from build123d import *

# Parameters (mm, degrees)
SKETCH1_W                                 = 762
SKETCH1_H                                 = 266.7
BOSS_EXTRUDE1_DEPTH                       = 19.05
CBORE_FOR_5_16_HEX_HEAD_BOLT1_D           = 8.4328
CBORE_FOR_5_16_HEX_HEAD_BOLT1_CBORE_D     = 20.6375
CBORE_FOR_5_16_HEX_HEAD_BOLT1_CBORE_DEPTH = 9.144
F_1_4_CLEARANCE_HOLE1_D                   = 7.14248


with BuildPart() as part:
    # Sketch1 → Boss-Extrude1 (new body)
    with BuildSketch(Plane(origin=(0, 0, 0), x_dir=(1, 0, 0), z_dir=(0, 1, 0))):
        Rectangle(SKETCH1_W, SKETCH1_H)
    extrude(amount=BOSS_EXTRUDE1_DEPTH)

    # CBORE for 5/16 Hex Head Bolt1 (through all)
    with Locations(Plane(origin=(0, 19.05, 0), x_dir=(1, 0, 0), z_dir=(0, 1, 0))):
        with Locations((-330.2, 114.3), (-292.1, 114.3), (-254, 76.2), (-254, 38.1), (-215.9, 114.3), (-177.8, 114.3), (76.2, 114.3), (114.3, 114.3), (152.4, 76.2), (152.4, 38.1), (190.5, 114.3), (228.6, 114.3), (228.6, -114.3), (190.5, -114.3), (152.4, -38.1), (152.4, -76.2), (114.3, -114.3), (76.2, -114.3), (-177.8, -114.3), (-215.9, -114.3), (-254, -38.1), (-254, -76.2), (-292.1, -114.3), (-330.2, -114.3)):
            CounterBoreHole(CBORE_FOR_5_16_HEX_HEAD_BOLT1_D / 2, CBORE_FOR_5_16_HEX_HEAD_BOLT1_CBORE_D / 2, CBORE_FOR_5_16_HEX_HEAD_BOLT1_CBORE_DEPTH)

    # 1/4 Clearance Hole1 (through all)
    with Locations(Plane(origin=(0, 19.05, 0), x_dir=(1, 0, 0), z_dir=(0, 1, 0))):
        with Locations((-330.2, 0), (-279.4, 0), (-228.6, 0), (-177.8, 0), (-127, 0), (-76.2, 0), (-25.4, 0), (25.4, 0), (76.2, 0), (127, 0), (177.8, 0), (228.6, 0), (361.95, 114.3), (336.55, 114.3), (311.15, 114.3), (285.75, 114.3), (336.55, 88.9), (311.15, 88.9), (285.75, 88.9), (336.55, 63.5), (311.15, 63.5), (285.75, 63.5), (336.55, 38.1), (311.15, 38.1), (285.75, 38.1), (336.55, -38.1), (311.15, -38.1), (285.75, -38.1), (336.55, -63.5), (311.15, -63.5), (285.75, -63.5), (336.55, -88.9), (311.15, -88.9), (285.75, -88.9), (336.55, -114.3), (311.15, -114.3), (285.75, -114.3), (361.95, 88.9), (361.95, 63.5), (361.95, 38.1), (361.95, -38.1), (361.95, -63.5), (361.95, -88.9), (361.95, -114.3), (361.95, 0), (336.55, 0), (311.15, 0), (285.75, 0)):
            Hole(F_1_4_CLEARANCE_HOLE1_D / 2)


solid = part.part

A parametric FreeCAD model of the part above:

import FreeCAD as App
import Part
import Sketcher
from FreeCAD import Vector
Q = App.Units.Quantity


def add_polygon(sketch, points):
    """Adds a closed chain of lines whose ends are joined by coincident constraints."""
    first, n = sketch.GeometryCount, len(points)
    for a, b in zip(points, points[1:] + points[:1]):
        sketch.addGeometry(Part.LineSegment(App.Vector(*a, 0), App.Vector(*b, 0)), False)
    for i in range(n):
        sketch.addConstraint(Sketcher.Constraint("Coincident", first + i, 2, first + (i + 1) % n, 1))

doc = App.newDocument("Part")
body = doc.addObject("PartDesign::Body", "Body")

sketch1 = body.newObject("Sketcher::SketchObject", "Sketch")
sketch1.AttachmentSupport = (doc.getObject("XZ_Plane"), [""])
sketch1.MapMode = "FlatFace"
add_polygon(sketch1, [(-381, -133), (-381, 133), (381, 133), (381, -133)])
sketch1.addConstraint([
    Sketcher.Constraint("Vertical", 0),
    Sketcher.Constraint("Horizontal", 1),
    Sketcher.Constraint("Vertical", 2),
    Sketcher.Constraint("Horizontal", 3),
    Sketcher.Constraint("Symmetric", 0, 2, 2, 2, -1, 1),
    Sketcher.Constraint("DistanceX", 1, 1, 1, 2, Q("30 in")),
    Sketcher.Constraint("DistanceY", 0, 1, 0, 2, Q("10.5 in")),
])
pad1 = body.newObject("PartDesign::Pad", "Pad")
pad1.Profile = sketch1
pad1.Length = Q("0.75 in")
pad1.Reversed = True

sketch2 = body.newObject("Sketcher::SketchObject", "Sketch001")
sketch2.AttachmentSupport = (doc.getObject("XZ_Plane"), [""])
sketch2.MapMode = "FlatFace"
sketch2.AttachmentOffset = App.Placement(Vector(0, 0, -0.75 * 25.4), App.Rotation())
sketch2.addGeometry([
    Part.Circle(Vector(-330.2, -114.3, 0), Vector(0, 0, 1), 4.2),
    Part.Circle(Vector(-292.1, -114.3, 0), Vector(0, 0, 1), 4.2),
    Part.Circle(Vector(-254, -76.2, 0), Vector(0, 0, 1), 4.2),
    Part.Circle(Vector(-254, -38.1, 0), Vector(0, 0, 1), 4.2),
    Part.Circle(Vector(-215.9, -114.3, 0), Vector(0, 0, 1), 4.2),
    Part.Circle(Vector(-177.8, -114.3, 0), Vector(0, 0, 1), 4.2),
    Part.Circle(Vector(76.2, -114.3, 0), Vector(0, 0, 1), 4.2),
    Part.Circle(Vector(114.3, -114.3, 0), Vector(0, 0, 1), 4.2),
    Part.Circle(Vector(152.4, -76.2, 0), Vector(0, 0, 1), 4.2),
    Part.Circle(Vector(152.4, -38.1, 0), Vector(0, 0, 1), 4.2),
    Part.Circle(Vector(190.5, -114.3, 0), Vector(0, 0, 1), 4.2),
    Part.Circle(Vector(228.6, -114.3, 0), Vector(0, 0, 1), 4.2),
    Part.Circle(Vector(228.6, 114.3, 0), Vector(0, 0, 1), 4.2),
    Part.Circle(Vector(190.5, 114.3, 0), Vector(0, 0, 1), 4.2),
    Part.Circle(Vector(152.4, 38.1, 0), Vector(0, 0, 1), 4.2),
    Part.Circle(Vector(152.4, 76.2, 0), Vector(0, 0, 1), 4.2),
    Part.Circle(Vector(114.3, 114.3, 0), Vector(0, 0, 1), 4.2),
    Part.Circle(Vector(76.2, 114.3, 0), Vector(0, 0, 1), 4.2),
    Part.Circle(Vector(-177.8, 114.3, 0), Vector(0, 0, 1), 4.2),
    Part.Circle(Vector(-215.9, 114.3, 0), Vector(0, 0, 1), 4.2),
    Part.Circle(Vector(-254, 38.1, 0), Vector(0, 0, 1), 4.2),
    Part.Circle(Vector(-254, 76.2, 0), Vector(0, 0, 1), 4.2),
    Part.Circle(Vector(-292.1, 114.3, 0), Vector(0, 0, 1), 4.2),
    Part.Circle(Vector(-330.2, 114.3, 0), Vector(0, 0, 1), 4.2),
], False)
sketch2.addConstraint([
    Sketcher.Constraint("Equal", 0, 1),
    Sketcher.Constraint("Equal", 1, 2),
    Sketcher.Constraint("Equal", 2, 3),
    Sketcher.Constraint("Equal", 3, 4),
    Sketcher.Constraint("Equal", 4, 5),
    Sketcher.Constraint("Equal", 5, 6),
    Sketcher.Constraint("Equal", 6, 7),
    Sketcher.Constraint("Equal", 7, 8),
    Sketcher.Constraint("Equal", 8, 9),
    Sketcher.Constraint("Equal", 9, 10),
    Sketcher.Constraint("Equal", 10, 11),
    Sketcher.Constraint("Equal", 11, 12),
    Sketcher.Constraint("Equal", 12, 13),
    Sketcher.Constraint("Equal", 13, 14),
    Sketcher.Constraint("Equal", 14, 15),
    Sketcher.Constraint("Equal", 15, 16),
    Sketcher.Constraint("Equal", 16, 17),
    Sketcher.Constraint("Equal", 17, 18),
    Sketcher.Constraint("Equal", 18, 19),
    Sketcher.Constraint("Equal", 19, 20),
    Sketcher.Constraint("Equal", 20, 21),
    Sketcher.Constraint("Equal", 21, 22),
    Sketcher.Constraint("Equal", 22, 23),
    Sketcher.Constraint("Symmetric", 11, 3, 12, 3, -1),
    Sketcher.Constraint("Symmetric", 10, 3, 13, 3, -1),
    Sketcher.Constraint("Symmetric", 9, 3, 14, 3, -1),
    Sketcher.Constraint("Symmetric", 8, 3, 15, 3, -1),
    Sketcher.Constraint("Symmetric", 7, 3, 16, 3, -1),
    Sketcher.Constraint("Symmetric", 6, 3, 17, 3, -1),
    Sketcher.Constraint("Symmetric", 5, 3, 18, 3, -1),
    Sketcher.Constraint("Symmetric", 4, 3, 19, 3, -1),
    Sketcher.Constraint("Symmetric", 3, 3, 20, 3, -1),
    Sketcher.Constraint("Symmetric", 2, 3, 21, 3, -1),
    Sketcher.Constraint("Symmetric", 1, 3, 22, 3, -1),
    Sketcher.Constraint("Symmetric", 0, 3, 23, 3, -1),
    Sketcher.Constraint("Horizontal", 0, 3, 1, 3),
    Sketcher.Constraint("Horizontal", 1, 3, 4, 3),
    Sketcher.Constraint("Horizontal", 4, 3, 5, 3),
    Sketcher.Constraint("Horizontal", 5, 3, 6, 3),
    Sketcher.Constraint("Horizontal", 6, 3, 7, 3),
    Sketcher.Constraint("Horizontal", 2, 3, 8, 3),
    Sketcher.Constraint("Horizontal", 3, 3, 9, 3),
    Sketcher.Constraint("Horizontal", 7, 3, 10, 3),
    Sketcher.Constraint("Horizontal", 10, 3, 11, 3),
    Sketcher.Constraint("Vertical", 2, 3, 3, 3),
    Sketcher.Constraint("Vertical", 8, 3, 9, 3),
    Sketcher.Constraint("Diameter", 0, Q("0.332 in")),
    Sketcher.Constraint("DistanceX", 0, 3, -1, 1, Q("13 in")),
    Sketcher.Constraint("DistanceX", 2, 3, -1, 1, Q("10 in")),
    Sketcher.Constraint("DistanceY", 2, 3, -1, 1, Q("3 in")),
    Sketcher.Constraint("DistanceX", 5, 3, -1, 1, Q("7 in")),
    Sketcher.Constraint("DistanceX", -1, 1, 6, 3, Q("3 in")),
    Sketcher.Constraint("DistanceX", -1, 1, 8, 3, Q("6 in")),
    Sketcher.Constraint("DistanceX", -1, 1, 11, 3, Q("9 in")),
    Sketcher.Constraint("DistanceY", 1, 3, 3, 3, Q("3 in")),
    Sketcher.Constraint("DistanceX", 1, 3, 4, 3, Q("3 in")),
    Sketcher.Constraint("DistanceX", 4, 3, 7, 3, Q("13 in")),
    Sketcher.Constraint("DistanceX", 7, 3, 10, 3, Q("3 in")),
    Sketcher.Constraint("DistanceY", 9, 3, 12, 3, Q("6 in")),
    Sketcher.Constraint("DistanceX", 1, 3, -1, 1, Q("11.5 in")),
])
doc.recompute()
hole = body.newObject("PartDesign::Hole", "Hole")
hole.Profile = sketch2
hole.ThreadType = "None"
hole.Diameter = Q("0.332 in")
hole.DepthType = "ThroughAll"
hole.HoleCutType = "Counterbore"
hole.HoleCutDiameter = Q("0.8125 in")
hole.HoleCutDepth = Q("0.36 in")
hole.Reversed = True

sketch3 = body.newObject("Sketcher::SketchObject", "Sketch002")
sketch3.AttachmentSupport = (doc.getObject("XZ_Plane"), [""])
sketch3.MapMode = "FlatFace"
sketch3.AttachmentOffset = App.Placement(Vector(0, 0, -0.75 * 25.4), App.Rotation())
sketch3.addGeometry([
    Part.Circle(Vector(-330.2, 0, 0), Vector(0, 0, 1), 3.6),
    Part.Circle(Vector(-279.4, 0, 0), Vector(0, 0, 1), 3.6),
    Part.Circle(Vector(-228.6, 0, 0), Vector(0, 0, 1), 3.6),
    Part.Circle(Vector(-177.8, 0, 0), Vector(0, 0, 1), 3.6),
    Part.Circle(Vector(-127, 0, 0), Vector(0, 0, 1), 3.6),
    Part.Circle(Vector(-76.2, 0, 0), Vector(0, 0, 1), 3.6),
    Part.Circle(Vector(-25.4, 0, 0), Vector(0, 0, 1), 3.6),
    Part.Circle(Vector(25.4, 0, 0), Vector(0, 0, 1), 3.6),
    Part.Circle(Vector(76.2, 0, 0), Vector(0, 0, 1), 3.6),
    Part.Circle(Vector(127, 0, 0), Vector(0, 0, 1), 3.6),
    Part.Circle(Vector(177.8, 0, 0), Vector(0, 0, 1), 3.6),
    Part.Circle(Vector(228.6, 0, 0), Vector(0, 0, 1), 3.6),
    Part.Circle(Vector(361.9, -114.3, 0), Vector(0, 0, 1), 3.6),
    Part.Circle(Vector(336.6, -114.3, 0), Vector(0, 0, 1), 3.6),
    Part.Circle(Vector(311.1, -114.3, 0), Vector(0, 0, 1), 3.6),
    Part.Circle(Vector(285.8, -114.3, 0), Vector(0, 0, 1), 3.6),
    Part.Circle(Vector(336.6, -88.9, 0), Vector(0, 0, 1), 3.6),
    Part.Circle(Vector(311.1, -88.9, 0), Vector(0, 0, 1), 3.6),
    Part.Circle(Vector(285.8, -88.9, 0), Vector(0, 0, 1), 3.6),
    Part.Circle(Vector(336.6, -63.5, 0), Vector(0, 0, 1), 3.6),
    Part.Circle(Vector(311.1, -63.5, 0), Vector(0, 0, 1), 3.6),
    Part.Circle(Vector(285.8, -63.5, 0), Vector(0, 0, 1), 3.6),
    Part.Circle(Vector(336.6, -38.1, 0), Vector(0, 0, 1), 3.6),
    Part.Circle(Vector(311.1, -38.1, 0), Vector(0, 0, 1), 3.6),
    Part.Circle(Vector(285.8, -38.1, 0), Vector(0, 0, 1), 3.6),
    Part.Circle(Vector(336.6, 38.1, 0), Vector(0, 0, 1), 3.6),
    Part.Circle(Vector(311.1, 38.1, 0), Vector(0, 0, 1), 3.6),
    Part.Circle(Vector(285.8, 38.1, 0), Vector(0, 0, 1), 3.6),
    Part.Circle(Vector(336.6, 63.5, 0), Vector(0, 0, 1), 3.6),
    Part.Circle(Vector(311.1, 63.5, 0), Vector(0, 0, 1), 3.6),
    Part.Circle(Vector(285.8, 63.5, 0), Vector(0, 0, 1), 3.6),
    Part.Circle(Vector(336.6, 88.9, 0), Vector(0, 0, 1), 3.6),
    Part.Circle(Vector(311.1, 88.9, 0), Vector(0, 0, 1), 3.6),
    Part.Circle(Vector(285.8, 88.9, 0), Vector(0, 0, 1), 3.6),
    Part.Circle(Vector(336.6, 114.3, 0), Vector(0, 0, 1), 3.6),
    Part.Circle(Vector(311.1, 114.3, 0), Vector(0, 0, 1), 3.6),
    Part.Circle(Vector(285.8, 114.3, 0), Vector(0, 0, 1), 3.6),
    Part.Circle(Vector(361.9, -88.9, 0), Vector(0, 0, 1), 3.6),
    Part.Circle(Vector(361.9, -63.5, 0), Vector(0, 0, 1), 3.6),
    Part.Circle(Vector(361.9, -38.1, 0), Vector(0, 0, 1), 3.6),
    Part.Circle(Vector(361.9, 38.1, 0), Vector(0, 0, 1), 3.6),
    Part.Circle(Vector(361.9, 63.5, 0), Vector(0, 0, 1), 3.6),
    Part.Circle(Vector(361.9, 88.9, 0), Vector(0, 0, 1), 3.6),
    Part.Circle(Vector(361.9, 114.3, 0), Vector(0, 0, 1), 3.6),
    Part.Circle(Vector(361.9, 0, 0), Vector(0, 0, 1), 3.6),
    Part.Circle(Vector(336.6, 0, 0), Vector(0, 0, 1), 3.6),
    Part.Circle(Vector(311.1, 0, 0), Vector(0, 0, 1), 3.6),
    Part.Circle(Vector(285.8, 0, 0), Vector(0, 0, 1), 3.6),
], False)
sketch3.addConstraint([
    Sketcher.Constraint("Equal", 0, 1),
    Sketcher.Constraint("Equal", 1, 2),
    Sketcher.Constraint("Equal", 2, 3),
    Sketcher.Constraint("Equal", 3, 4),
    Sketcher.Constraint("Equal", 4, 5),
    Sketcher.Constraint("Equal", 5, 6),
    Sketcher.Constraint("Equal", 6, 7),
    Sketcher.Constraint("Equal", 7, 8),
    Sketcher.Constraint("Equal", 8, 9),
    Sketcher.Constraint("Equal", 9, 10),
    Sketcher.Constraint("Equal", 10, 11),
    Sketcher.Constraint("Equal", 11, 12),
    Sketcher.Constraint("Equal", 12, 13),
    Sketcher.Constraint("Equal", 13, 14),
    Sketcher.Constraint("Equal", 14, 15),
    Sketcher.Constraint("Equal", 15, 16),
    Sketcher.Constraint("Equal", 16, 17),
    Sketcher.Constraint("Equal", 17, 18),
    Sketcher.Constraint("Equal", 18, 19),
    Sketcher.Constraint("Equal", 19, 20),
    Sketcher.Constraint("Equal", 20, 21),
    Sketcher.Constraint("Equal", 21, 22),
    Sketcher.Constraint("Equal", 22, 23),
    Sketcher.Constraint("Equal", 23, 24),
    Sketcher.Constraint("Equal", 24, 25),
    Sketcher.Constraint("Equal", 25, 26),
    Sketcher.Constraint("Equal", 26, 27),
    Sketcher.Constraint("Equal", 27, 28),
    Sketcher.Constraint("Equal", 28, 29),
    Sketcher.Constraint("Equal", 29, 30),
    Sketcher.Constraint("Equal", 30, 31),
    Sketcher.Constraint("Equal", 31, 32),
    Sketcher.Constraint("Equal", 32, 33),
    Sketcher.Constraint("Equal", 33, 34),
    Sketcher.Constraint("Equal", 34, 35),
    Sketcher.Constraint("Equal", 35, 36),
    Sketcher.Constraint("Equal", 36, 37),
    Sketcher.Constraint("Equal", 37, 38),
    Sketcher.Constraint("Equal", 38, 39),
    Sketcher.Constraint("Equal", 39, 40),
    Sketcher.Constraint("Equal", 40, 41),
    Sketcher.Constraint("Equal", 41, 42),
    Sketcher.Constraint("Equal", 42, 43),
    Sketcher.Constraint("Equal", 43, 44),
    Sketcher.Constraint("Equal", 44, 45),
    Sketcher.Constraint("Equal", 45, 46),
    Sketcher.Constraint("Equal", 46, 47),
    Sketcher.Constraint("Symmetric", 6, 3, 7, 3, -1, 1),
    Sketcher.Constraint("Symmetric", 5, 3, 8, 3, -1, 1),
    Sketcher.Constraint("Symmetric", 4, 3, 9, 3, -1, 1),
    Sketcher.Constraint("Symmetric", 3, 3, 10, 3, -1, 1),
    Sketcher.Constraint("Symmetric", 2, 3, 11, 3, -1, 1),
    Sketcher.Constraint("Symmetric", 22, 3, 25, 3, -1),
    Sketcher.Constraint("Symmetric", 23, 3, 26, 3, -1),
    Sketcher.Constraint("Symmetric", 24, 3, 27, 3, -1),
    Sketcher.Constraint("Symmetric", 19, 3, 28, 3, -1),
    Sketcher.Constraint("Symmetric", 20, 3, 29, 3, -1),
    Sketcher.Constraint("Symmetric", 21, 3, 30, 3, -1),
    Sketcher.Constraint("Symmetric", 16, 3, 31, 3, -1),
    Sketcher.Constraint("Symmetric", 17, 3, 32, 3, -1),
    Sketcher.Constraint("Symmetric", 18, 3, 33, 3, -1),
    Sketcher.Constraint("Symmetric", 13, 3, 34, 3, -1),
    Sketcher.Constraint("Symmetric", 14, 3, 35, 3, -1),
    Sketcher.Constraint("Symmetric", 15, 3, 36, 3, -1),
    Sketcher.Constraint("Symmetric", 39, 3, 40, 3, -1),
    Sketcher.Constraint("Symmetric", 38, 3, 41, 3, -1),
    Sketcher.Constraint("Symmetric", 37, 3, 42, 3, -1),
    Sketcher.Constraint("Symmetric", 12, 3, 43, 3, -1),
    Sketcher.Constraint("PointOnObject", 0, 3, -1),
    Sketcher.Constraint("PointOnObject", 1, 3, -1),
    Sketcher.Constraint("PointOnObject", 2, 3, -1),
    Sketcher.Constraint("PointOnObject", 3, 3, -1),
    Sketcher.Constraint("PointOnObject", 4, 3, -1),
    Sketcher.Constraint("PointOnObject", 5, 3, -1),
    Sketcher.Constraint("PointOnObject", 6, 3, -1),
    Sketcher.Constraint("PointOnObject", 44, 3, -1),
    Sketcher.Constraint("PointOnObject", 45, 3, -1),
    Sketcher.Constraint("PointOnObject", 46, 3, -1),
    Sketcher.Constraint("PointOnObject", 47, 3, -1),
    Sketcher.Constraint("Horizontal", 12, 3, 13, 3),
    Sketcher.Constraint("Horizontal", 13, 3, 14, 3),
    Sketcher.Constraint("Horizontal", 14, 3, 15, 3),
    Sketcher.Constraint("Horizontal", 16, 3, 17, 3),
    Sketcher.Constraint("Horizontal", 17, 3, 18, 3),
    Sketcher.Constraint("Horizontal", 19, 3, 20, 3),
    Sketcher.Constraint("Horizontal", 20, 3, 21, 3),
    Sketcher.Constraint("Horizontal", 22, 3, 23, 3),
    Sketcher.Constraint("Horizontal", 23, 3, 24, 3),
    Sketcher.Constraint("Horizontal", 18, 3, 37, 3),
    Sketcher.Constraint("Horizontal", 21, 3, 38, 3),
    Sketcher.Constraint("Horizontal", 24, 3, 39, 3),
    Sketcher.Constraint("Vertical", 13, 3, 16, 3),
    Sketcher.Constraint("Vertical", 14, 3, 17, 3),
    Sketcher.Constraint("Vertical", 15, 3, 18, 3),
    Sketcher.Constraint("Vertical", 16, 3, 19, 3),
    Sketcher.Constraint("Vertical", 17, 3, 20, 3),
    Sketcher.Constraint("Vertical", 18, 3, 21, 3),
    Sketcher.Constraint("Vertical", 19, 3, 22, 3),
    Sketcher.Constraint("Vertical", 20, 3, 23, 3),
    Sketcher.Constraint("Vertical", 21, 3, 24, 3),
    Sketcher.Constraint("Vertical", 12, 3, 37, 3),
    Sketcher.Constraint("Vertical", 37, 3, 38, 3),
    Sketcher.Constraint("Vertical", 38, 3, 39, 3),
    Sketcher.Constraint("Vertical", 43, 3, 44, 3),
    Sketcher.Constraint("Vertical", 34, 3, 45, 3),
    Sketcher.Constraint("Vertical", 35, 3, 46, 3),
    Sketcher.Constraint("Vertical", 36, 3, 47, 3),
    Sketcher.Constraint("DistanceX", 0, 3, -1, 1, Q("13 in")),
    Sketcher.Constraint("DistanceX", 1, 3, -1, 1, Q("11 in")),
    Sketcher.Constraint("DistanceX", 2, 3, -1, 1, Q("9 in")),
    Sketcher.Constraint("DistanceX", 3, 3, -1, 1, Q("7 in")),
    Sketcher.Constraint("DistanceX", 4, 3, -1, 1, Q("5 in")),
    Sketcher.Constraint("DistanceX", 5, 3, -1, 1, Q("3 in")),
    Sketcher.Constraint("DistanceX", 6, 3, -1, 1, Q("1 in")),
    Sketcher.Constraint("DistanceX", 13, 3, 12, 3, Q("1 in")),
    Sketcher.Constraint("DistanceX", 14, 3, 13, 3, Q("1 in")),
    Sketcher.Constraint("DistanceX", 15, 3, 14, 3, Q("1 in")),
    Sketcher.Constraint("DistanceY", 13, 3, 16, 3, Q("1 in")),
    Sketcher.Constraint("DistanceY", 16, 3, 19, 3, Q("1 in")),
    Sketcher.Constraint("DistanceY", 19, 3, 22, 3, Q("1 in")),
    Sketcher.Constraint("DistanceY", 22, 3, 25, 3, Q("3 in")),
    Sketcher.Constraint("Diameter", 0, Q("0.2812 in")),
    Sketcher.Constraint("DistanceX", -1, 1, 12, 3, Q("14.25 in")),
])
doc.recompute()
hole2 = body.newObject("PartDesign::Hole", "Hole001")
hole2.Profile = sketch3
hole2.ThreadType = "None"
hole2.Diameter = Q("0.2812 in")
hole2.DepthType = "ThroughAll"
hole2.Reversed = True

doc.recompute()
